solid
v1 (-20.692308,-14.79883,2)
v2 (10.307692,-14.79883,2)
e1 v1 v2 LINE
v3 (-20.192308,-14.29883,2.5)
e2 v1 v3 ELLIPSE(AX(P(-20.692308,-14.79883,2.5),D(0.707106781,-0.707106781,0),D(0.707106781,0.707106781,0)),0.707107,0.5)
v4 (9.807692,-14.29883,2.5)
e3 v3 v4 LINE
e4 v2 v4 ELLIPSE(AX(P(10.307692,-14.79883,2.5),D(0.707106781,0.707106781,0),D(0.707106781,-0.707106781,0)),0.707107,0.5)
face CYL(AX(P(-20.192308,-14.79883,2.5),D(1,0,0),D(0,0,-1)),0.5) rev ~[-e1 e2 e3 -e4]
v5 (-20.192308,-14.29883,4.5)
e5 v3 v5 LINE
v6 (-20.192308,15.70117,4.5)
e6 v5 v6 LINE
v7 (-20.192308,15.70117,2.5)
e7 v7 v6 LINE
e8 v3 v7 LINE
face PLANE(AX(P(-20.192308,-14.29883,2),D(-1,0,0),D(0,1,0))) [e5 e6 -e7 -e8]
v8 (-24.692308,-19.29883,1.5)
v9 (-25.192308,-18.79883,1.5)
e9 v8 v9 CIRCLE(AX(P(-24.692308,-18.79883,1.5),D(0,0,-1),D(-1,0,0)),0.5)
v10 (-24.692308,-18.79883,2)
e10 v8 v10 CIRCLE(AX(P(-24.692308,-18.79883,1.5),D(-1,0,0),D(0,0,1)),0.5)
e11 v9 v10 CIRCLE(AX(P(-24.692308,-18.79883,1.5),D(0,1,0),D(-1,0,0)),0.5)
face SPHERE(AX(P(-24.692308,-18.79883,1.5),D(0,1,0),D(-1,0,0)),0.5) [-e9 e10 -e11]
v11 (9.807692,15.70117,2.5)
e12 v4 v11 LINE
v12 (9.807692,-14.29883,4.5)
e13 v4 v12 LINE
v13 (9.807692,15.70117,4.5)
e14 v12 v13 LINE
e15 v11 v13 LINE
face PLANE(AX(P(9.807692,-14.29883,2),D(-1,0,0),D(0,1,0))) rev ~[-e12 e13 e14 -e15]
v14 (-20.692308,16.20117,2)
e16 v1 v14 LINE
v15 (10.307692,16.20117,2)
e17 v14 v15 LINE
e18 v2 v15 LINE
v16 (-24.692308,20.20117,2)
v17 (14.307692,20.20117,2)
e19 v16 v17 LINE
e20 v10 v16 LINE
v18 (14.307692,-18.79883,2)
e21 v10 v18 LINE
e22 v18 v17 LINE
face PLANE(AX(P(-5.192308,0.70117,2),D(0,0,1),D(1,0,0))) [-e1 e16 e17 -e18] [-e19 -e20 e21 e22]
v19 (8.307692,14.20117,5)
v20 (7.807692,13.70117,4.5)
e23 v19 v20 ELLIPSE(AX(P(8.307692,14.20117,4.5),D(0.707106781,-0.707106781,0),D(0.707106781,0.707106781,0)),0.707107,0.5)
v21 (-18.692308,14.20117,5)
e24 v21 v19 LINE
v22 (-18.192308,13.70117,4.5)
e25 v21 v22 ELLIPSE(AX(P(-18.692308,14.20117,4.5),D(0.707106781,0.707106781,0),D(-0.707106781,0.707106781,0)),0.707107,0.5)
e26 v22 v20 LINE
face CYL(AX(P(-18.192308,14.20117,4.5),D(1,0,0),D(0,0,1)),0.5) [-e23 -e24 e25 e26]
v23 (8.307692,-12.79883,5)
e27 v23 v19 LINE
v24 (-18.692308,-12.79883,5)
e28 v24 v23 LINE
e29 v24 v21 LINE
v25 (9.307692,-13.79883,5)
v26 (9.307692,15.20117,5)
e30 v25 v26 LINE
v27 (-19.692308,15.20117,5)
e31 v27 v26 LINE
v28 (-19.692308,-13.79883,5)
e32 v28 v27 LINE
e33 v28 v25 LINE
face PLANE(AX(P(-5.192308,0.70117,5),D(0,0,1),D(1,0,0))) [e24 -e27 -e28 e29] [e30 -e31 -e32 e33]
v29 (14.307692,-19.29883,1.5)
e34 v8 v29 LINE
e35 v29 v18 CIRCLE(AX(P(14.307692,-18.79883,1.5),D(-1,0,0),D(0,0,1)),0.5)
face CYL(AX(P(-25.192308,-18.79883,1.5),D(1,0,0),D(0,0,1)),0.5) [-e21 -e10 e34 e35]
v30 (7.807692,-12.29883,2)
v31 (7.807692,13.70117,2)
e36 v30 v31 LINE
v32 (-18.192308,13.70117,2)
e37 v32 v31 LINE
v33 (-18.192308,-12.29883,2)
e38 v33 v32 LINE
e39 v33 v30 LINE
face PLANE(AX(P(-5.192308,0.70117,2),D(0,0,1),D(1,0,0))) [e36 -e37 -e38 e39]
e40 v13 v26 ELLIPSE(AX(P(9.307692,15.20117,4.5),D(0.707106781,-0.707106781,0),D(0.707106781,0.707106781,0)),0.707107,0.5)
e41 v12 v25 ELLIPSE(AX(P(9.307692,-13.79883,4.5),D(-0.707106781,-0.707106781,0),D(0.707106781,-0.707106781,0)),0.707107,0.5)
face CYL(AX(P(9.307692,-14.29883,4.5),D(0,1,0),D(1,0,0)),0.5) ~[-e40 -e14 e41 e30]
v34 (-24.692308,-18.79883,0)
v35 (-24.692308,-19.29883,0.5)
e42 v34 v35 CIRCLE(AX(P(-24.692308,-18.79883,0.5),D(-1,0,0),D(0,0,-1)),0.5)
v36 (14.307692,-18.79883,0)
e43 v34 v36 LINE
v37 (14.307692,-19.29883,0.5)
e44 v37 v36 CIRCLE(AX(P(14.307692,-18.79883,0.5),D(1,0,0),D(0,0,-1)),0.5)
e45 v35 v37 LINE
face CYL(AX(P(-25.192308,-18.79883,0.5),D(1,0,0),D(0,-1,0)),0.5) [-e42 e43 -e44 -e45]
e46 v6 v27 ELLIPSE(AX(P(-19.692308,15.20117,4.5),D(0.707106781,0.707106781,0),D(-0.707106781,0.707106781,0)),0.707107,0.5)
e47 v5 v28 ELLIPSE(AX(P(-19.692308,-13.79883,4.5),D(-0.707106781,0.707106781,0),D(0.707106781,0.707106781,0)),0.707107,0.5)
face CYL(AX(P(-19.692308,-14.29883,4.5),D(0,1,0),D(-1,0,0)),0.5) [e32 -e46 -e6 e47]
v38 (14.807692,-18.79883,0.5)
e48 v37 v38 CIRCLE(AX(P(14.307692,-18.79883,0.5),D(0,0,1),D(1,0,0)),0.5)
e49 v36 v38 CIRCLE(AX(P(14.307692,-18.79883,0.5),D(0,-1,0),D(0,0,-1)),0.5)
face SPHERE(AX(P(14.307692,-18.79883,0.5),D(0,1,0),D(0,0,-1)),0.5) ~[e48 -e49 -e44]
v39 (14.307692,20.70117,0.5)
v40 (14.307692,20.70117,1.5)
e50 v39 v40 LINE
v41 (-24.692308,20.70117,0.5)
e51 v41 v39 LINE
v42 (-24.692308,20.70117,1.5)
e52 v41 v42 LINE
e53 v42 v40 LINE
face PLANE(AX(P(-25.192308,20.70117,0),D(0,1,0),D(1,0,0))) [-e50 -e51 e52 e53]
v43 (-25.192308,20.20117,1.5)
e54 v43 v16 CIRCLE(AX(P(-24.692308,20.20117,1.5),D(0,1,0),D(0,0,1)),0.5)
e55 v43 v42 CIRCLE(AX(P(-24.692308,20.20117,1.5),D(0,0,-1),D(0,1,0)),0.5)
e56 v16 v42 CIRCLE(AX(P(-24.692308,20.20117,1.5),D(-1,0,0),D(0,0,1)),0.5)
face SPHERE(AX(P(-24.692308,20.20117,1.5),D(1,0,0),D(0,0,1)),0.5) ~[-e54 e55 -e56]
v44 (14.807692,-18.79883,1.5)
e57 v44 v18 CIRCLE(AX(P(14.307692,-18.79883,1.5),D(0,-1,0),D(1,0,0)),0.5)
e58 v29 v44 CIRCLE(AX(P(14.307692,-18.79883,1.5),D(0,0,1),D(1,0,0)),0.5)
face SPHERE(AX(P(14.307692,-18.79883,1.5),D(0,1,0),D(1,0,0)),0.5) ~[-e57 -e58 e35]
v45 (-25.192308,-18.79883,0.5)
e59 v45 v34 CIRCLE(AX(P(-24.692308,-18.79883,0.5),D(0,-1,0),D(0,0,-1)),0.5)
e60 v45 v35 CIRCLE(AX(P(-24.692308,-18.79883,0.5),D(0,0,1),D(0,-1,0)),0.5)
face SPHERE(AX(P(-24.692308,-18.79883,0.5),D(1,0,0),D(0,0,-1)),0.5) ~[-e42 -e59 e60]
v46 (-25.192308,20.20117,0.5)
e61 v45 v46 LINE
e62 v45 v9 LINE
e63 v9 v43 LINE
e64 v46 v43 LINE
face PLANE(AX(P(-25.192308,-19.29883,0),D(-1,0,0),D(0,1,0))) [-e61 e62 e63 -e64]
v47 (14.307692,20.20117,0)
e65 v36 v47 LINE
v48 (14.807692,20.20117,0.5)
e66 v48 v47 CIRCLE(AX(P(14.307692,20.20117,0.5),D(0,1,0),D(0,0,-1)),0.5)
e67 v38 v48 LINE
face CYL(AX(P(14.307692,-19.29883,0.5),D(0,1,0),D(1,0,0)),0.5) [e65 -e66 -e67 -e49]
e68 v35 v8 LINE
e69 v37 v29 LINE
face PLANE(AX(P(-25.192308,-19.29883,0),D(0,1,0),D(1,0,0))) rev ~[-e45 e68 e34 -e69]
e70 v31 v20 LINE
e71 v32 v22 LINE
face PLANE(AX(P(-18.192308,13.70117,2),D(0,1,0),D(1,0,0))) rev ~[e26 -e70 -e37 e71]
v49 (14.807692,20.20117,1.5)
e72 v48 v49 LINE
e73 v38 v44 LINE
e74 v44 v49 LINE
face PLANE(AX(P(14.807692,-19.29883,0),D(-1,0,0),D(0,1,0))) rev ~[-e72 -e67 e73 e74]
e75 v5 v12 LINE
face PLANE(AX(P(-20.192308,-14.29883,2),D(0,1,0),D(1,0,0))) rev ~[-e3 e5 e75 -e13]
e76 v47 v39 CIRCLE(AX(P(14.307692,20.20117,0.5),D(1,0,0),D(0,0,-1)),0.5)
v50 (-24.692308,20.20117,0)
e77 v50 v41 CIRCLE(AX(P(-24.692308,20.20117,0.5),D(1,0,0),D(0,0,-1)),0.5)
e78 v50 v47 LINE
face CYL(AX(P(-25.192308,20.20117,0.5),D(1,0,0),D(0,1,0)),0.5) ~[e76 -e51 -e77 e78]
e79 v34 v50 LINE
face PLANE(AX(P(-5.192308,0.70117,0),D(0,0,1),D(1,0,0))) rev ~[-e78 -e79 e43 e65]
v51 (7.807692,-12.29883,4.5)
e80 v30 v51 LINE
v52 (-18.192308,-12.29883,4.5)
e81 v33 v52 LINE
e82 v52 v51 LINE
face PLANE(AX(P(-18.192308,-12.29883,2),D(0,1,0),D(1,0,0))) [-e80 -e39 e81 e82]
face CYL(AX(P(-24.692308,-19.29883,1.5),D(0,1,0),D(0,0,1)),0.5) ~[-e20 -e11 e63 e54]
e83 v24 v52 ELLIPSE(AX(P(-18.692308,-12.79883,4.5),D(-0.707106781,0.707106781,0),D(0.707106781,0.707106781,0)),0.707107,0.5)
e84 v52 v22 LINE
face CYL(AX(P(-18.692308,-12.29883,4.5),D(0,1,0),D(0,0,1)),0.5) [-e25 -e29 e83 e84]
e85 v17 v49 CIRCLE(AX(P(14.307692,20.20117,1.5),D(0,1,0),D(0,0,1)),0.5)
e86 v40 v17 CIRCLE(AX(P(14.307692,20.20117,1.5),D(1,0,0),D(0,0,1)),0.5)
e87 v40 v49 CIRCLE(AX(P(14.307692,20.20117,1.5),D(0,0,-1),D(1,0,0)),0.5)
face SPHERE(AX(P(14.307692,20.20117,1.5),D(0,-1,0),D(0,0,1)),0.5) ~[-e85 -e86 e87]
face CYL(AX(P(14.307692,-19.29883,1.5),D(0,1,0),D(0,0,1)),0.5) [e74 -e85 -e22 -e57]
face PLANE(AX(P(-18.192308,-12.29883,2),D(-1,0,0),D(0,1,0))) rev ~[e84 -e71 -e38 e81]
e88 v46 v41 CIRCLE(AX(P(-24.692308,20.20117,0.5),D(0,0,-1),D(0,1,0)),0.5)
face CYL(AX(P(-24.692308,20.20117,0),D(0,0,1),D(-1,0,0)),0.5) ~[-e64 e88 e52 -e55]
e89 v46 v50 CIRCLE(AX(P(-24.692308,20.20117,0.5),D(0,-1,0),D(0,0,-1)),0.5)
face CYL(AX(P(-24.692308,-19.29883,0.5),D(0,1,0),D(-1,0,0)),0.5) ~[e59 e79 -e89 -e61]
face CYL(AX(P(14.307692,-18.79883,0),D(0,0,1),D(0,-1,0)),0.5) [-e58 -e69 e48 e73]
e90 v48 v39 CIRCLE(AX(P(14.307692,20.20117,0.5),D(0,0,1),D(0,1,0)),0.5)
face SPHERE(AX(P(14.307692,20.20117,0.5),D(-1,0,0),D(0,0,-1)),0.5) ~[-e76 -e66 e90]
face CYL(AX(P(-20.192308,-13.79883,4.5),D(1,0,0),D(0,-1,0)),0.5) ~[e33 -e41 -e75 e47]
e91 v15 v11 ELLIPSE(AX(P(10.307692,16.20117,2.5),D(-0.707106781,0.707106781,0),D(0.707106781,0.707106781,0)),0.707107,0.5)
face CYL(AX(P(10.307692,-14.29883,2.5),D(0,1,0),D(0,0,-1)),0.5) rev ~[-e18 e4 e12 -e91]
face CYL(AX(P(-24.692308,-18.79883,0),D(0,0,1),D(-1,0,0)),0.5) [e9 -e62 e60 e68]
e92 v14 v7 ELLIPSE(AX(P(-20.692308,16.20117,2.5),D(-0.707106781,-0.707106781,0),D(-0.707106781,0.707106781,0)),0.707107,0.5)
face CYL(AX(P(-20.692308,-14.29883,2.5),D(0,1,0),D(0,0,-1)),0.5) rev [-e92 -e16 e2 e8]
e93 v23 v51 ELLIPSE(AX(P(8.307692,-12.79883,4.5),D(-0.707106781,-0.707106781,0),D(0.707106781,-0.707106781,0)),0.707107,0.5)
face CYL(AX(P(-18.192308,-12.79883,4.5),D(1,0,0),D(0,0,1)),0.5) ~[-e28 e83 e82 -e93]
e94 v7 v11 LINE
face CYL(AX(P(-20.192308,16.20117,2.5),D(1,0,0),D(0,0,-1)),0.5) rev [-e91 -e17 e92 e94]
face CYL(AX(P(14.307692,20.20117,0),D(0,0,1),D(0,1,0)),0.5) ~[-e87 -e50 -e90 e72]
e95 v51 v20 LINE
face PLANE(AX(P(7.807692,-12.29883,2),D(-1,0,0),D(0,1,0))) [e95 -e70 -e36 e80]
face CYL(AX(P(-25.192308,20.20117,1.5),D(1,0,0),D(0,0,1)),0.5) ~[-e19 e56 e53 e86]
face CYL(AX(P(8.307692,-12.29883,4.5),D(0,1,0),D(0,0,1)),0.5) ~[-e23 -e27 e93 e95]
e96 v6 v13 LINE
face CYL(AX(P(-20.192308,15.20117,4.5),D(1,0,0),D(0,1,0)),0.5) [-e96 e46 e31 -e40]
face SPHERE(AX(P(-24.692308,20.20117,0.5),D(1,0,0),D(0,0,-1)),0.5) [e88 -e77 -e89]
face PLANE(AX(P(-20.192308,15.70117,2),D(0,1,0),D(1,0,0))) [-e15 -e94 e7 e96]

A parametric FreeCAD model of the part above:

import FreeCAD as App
import Part
import Sketcher
from FreeCAD import Vector


def edges_at(feature, points):
    """Names of the edges that pass closest to the given points."""
    edges = feature.Shape.Edges
    near = lambda p: min(range(len(edges)), key=lambda i: edges[i].distToShape(Part.Vertex(*p))[0])
    return sorted({f"Edge{near(p) + 1}" for p in points})

doc = App.newDocument("Part")
body = doc.addObject("PartDesign::Body", "Body")

sketch1 = doc.addObject("Sketcher::SketchObject", "Sketch")
body.addObject(sketch1)
sketch1.AttachmentSupport = (doc.XY_Plane, [""])
sketch1.MapMode = "FlatFace"
sketch1.addGeometry([
    Part.LineSegment(Vector(-25, 21, 0), Vector(-25, -19, 0)),
    Part.LineSegment(Vector(-25, -19, 0), Vector(15, -19, 0)),
    Part.LineSegment(Vector(15, -19, 0), Vector(15, 21, 0)),
    Part.LineSegment(Vector(15, 21, 0), Vector(-25, 21, 0)),
], False)
sketch1.addConstraint([
    Sketcher.Constraint("Coincident", 0, 2, 1, 1),
    Sketcher.Constraint("Coincident", 1, 2, 2, 1),
    Sketcher.Constraint("Coincident", 2, 2, 3, 1),
    Sketcher.Constraint("Coincident", 3, 2, 0, 1),
    Sketcher.Constraint("Vertical", 0),
    Sketcher.Constraint("Horizontal", 1),
    Sketcher.Constraint("Vertical", 2),
    Sketcher.Constraint("Horizontal", 3),
    Sketcher.Constraint("Equal", 3, 0),
    Sketcher.Constraint("DistanceX", 1, 1, 1, 2, 40.0),
    Sketcher.Constraint("DistanceY", 0, 2, -1, 1, 19.29883),
    Sketcher.Constraint("DistanceX", 0, 2, -1, 1, 25.192308),
])
pad1 = doc.addObject("PartDesign::Pad", "Pad")
body.addObject(pad1)
pad1.Profile = sketch1
pad1.Length = 2

sketch2 = doc.addObject("Sketcher::SketchObject", "Sketch001")
body.addObject(sketch2)
sketch2.AttachmentSupport = (doc.XY_Plane, [""])
sketch2.MapMode = "FlatFace"
sketch2.AttachmentOffset = App.Placement(Vector(0, 0, 2), App.Rotation())
sketch2.addGeometry([
    Part.LineSegment(Vector(-20, 16, 0), Vector(-20, -14, 0)),
    Part.LineSegment(Vector(-20, -14, 0), Vector(10, -14, 0)),
    Part.LineSegment(Vector(10, -14, 0), Vector(10, 16, 0)),
    Part.LineSegment(Vector(10, 16, 0), Vector(-20, 16, 0)),
    Part.LineSegment(Vector(8, -12, 0), Vector(-18, -12, 0)),
    Part.LineSegment(Vector(-18, -12, 0), Vector(-18, 14, 0)),
    Part.LineSegment(Vector(-18, 14, 0), Vector(8, 14, 0)),
    Part.LineSegment(Vector(8, 14, 0), Vector(8, -12, 0)),
], False)
sketch2.addConstraint([
    Sketcher.Constraint("Coincident", 0, 2, 1, 1),
    Sketcher.Constraint("Coincident", 1, 2, 2, 1),
    Sketcher.Constraint("Coincident", 2, 2, 3, 1),
    Sketcher.Constraint("Coincident", 3, 2, 0, 1),
    Sketcher.Constraint("Coincident", 4, 2, 5, 1),
    Sketcher.Constraint("Coincident", 5, 2, 6, 1),
    Sketcher.Constraint("Coincident", 6, 2, 7, 1),
    Sketcher.Constraint("Coincident", 7, 2, 4, 1),
    Sketcher.Constraint("Vertical", 0),
    Sketcher.Constraint("Horizontal", 1),
    Sketcher.Constraint("Vertical", 2),
    Sketcher.Constraint("Horizontal", 3),
    Sketcher.Constraint("Horizontal", 4),
    Sketcher.Constraint("Vertical", 5),
    Sketcher.Constraint("Horizontal", 6),
    Sketcher.Constraint("Vertical", 7),
    Sketcher.Constraint("Equal", 3, 0),
    Sketcher.Constraint("Equal", 6, 5),
    Sketcher.Constraint("DistanceX", 1, 1, 1, 2, 30.0),
    Sketcher.Constraint("DistanceX", 4, 2, 4, 1, 26.0),
    Sketcher.Constraint("DistanceX", 0, 2, 4, 2, 2.0),
    Sketcher.Constraint("DistanceY", 0, 2, 4, 2, 2.0),
    Sketcher.Constraint("DistanceY", 0, 2, -1, 1, 14.29883),
    Sketcher.Constraint("DistanceX", 0, 2, -1, 1, 20.192308),
])
pad2 = doc.addObject("PartDesign::Pad", "Pad001")
body.addObject(pad2)
pad2.Profile = sketch2
pad2.Length = 3
doc.recompute()

fillet = doc.addObject("PartDesign::Fillet", "Fillet")
body.addObject(fillet)
fillet.Base = (pad2, edges_at(pad2, [
    (-20.192, 0.701, 5),
    (-5.192, -14.299, 5),
    (9.808, 0.701, 5),
    (-5.192, 15.701, 5),
    (-18.192, 0.701, 5),
    (-5.192, -12.299, 5),
    (7.808, 0.701, 5),
    (-5.192, 13.701, 5),
]))
fillet.Radius = 0.5
doc.recompute()

fillet2 = doc.addObject("PartDesign::Fillet", "Fillet001")
body.addObject(fillet2)
fillet2.Base = (fillet, edges_at(fillet, [
    (14.808, 0.701, 2),
    (-5.192, 20.701, 2),
    (-25.192, 0.701, 2),
    (-5.192, 20.701, 0),
    (14.808, 0.701, 0),
    (-5.192, -19.299, 0),
    (-25.192, 0.701, 0),
    (-25.192, 20.701, 1),
    (14.808, 20.701, 1),
    (14.808, -19.299, 1),
    (-25.192, -19.299, 1),
    (-5.192, -19.299, 2),
]))
fillet2.Radius = 0.5
doc.recompute()

fillet3 = doc.addObject("PartDesign::Fillet", "Fillet002")
body.addObject(fillet3)
fillet3.Base = (fillet2, edges_at(fillet2, [
    (-20.192, 0.701, 2),
    (-5.192, -14.299, 2),
    (9.808, 0.701, 2),
    (-5.192, 15.701, 2),
]))
fillet3.Radius = 0.5

doc.recompute()
